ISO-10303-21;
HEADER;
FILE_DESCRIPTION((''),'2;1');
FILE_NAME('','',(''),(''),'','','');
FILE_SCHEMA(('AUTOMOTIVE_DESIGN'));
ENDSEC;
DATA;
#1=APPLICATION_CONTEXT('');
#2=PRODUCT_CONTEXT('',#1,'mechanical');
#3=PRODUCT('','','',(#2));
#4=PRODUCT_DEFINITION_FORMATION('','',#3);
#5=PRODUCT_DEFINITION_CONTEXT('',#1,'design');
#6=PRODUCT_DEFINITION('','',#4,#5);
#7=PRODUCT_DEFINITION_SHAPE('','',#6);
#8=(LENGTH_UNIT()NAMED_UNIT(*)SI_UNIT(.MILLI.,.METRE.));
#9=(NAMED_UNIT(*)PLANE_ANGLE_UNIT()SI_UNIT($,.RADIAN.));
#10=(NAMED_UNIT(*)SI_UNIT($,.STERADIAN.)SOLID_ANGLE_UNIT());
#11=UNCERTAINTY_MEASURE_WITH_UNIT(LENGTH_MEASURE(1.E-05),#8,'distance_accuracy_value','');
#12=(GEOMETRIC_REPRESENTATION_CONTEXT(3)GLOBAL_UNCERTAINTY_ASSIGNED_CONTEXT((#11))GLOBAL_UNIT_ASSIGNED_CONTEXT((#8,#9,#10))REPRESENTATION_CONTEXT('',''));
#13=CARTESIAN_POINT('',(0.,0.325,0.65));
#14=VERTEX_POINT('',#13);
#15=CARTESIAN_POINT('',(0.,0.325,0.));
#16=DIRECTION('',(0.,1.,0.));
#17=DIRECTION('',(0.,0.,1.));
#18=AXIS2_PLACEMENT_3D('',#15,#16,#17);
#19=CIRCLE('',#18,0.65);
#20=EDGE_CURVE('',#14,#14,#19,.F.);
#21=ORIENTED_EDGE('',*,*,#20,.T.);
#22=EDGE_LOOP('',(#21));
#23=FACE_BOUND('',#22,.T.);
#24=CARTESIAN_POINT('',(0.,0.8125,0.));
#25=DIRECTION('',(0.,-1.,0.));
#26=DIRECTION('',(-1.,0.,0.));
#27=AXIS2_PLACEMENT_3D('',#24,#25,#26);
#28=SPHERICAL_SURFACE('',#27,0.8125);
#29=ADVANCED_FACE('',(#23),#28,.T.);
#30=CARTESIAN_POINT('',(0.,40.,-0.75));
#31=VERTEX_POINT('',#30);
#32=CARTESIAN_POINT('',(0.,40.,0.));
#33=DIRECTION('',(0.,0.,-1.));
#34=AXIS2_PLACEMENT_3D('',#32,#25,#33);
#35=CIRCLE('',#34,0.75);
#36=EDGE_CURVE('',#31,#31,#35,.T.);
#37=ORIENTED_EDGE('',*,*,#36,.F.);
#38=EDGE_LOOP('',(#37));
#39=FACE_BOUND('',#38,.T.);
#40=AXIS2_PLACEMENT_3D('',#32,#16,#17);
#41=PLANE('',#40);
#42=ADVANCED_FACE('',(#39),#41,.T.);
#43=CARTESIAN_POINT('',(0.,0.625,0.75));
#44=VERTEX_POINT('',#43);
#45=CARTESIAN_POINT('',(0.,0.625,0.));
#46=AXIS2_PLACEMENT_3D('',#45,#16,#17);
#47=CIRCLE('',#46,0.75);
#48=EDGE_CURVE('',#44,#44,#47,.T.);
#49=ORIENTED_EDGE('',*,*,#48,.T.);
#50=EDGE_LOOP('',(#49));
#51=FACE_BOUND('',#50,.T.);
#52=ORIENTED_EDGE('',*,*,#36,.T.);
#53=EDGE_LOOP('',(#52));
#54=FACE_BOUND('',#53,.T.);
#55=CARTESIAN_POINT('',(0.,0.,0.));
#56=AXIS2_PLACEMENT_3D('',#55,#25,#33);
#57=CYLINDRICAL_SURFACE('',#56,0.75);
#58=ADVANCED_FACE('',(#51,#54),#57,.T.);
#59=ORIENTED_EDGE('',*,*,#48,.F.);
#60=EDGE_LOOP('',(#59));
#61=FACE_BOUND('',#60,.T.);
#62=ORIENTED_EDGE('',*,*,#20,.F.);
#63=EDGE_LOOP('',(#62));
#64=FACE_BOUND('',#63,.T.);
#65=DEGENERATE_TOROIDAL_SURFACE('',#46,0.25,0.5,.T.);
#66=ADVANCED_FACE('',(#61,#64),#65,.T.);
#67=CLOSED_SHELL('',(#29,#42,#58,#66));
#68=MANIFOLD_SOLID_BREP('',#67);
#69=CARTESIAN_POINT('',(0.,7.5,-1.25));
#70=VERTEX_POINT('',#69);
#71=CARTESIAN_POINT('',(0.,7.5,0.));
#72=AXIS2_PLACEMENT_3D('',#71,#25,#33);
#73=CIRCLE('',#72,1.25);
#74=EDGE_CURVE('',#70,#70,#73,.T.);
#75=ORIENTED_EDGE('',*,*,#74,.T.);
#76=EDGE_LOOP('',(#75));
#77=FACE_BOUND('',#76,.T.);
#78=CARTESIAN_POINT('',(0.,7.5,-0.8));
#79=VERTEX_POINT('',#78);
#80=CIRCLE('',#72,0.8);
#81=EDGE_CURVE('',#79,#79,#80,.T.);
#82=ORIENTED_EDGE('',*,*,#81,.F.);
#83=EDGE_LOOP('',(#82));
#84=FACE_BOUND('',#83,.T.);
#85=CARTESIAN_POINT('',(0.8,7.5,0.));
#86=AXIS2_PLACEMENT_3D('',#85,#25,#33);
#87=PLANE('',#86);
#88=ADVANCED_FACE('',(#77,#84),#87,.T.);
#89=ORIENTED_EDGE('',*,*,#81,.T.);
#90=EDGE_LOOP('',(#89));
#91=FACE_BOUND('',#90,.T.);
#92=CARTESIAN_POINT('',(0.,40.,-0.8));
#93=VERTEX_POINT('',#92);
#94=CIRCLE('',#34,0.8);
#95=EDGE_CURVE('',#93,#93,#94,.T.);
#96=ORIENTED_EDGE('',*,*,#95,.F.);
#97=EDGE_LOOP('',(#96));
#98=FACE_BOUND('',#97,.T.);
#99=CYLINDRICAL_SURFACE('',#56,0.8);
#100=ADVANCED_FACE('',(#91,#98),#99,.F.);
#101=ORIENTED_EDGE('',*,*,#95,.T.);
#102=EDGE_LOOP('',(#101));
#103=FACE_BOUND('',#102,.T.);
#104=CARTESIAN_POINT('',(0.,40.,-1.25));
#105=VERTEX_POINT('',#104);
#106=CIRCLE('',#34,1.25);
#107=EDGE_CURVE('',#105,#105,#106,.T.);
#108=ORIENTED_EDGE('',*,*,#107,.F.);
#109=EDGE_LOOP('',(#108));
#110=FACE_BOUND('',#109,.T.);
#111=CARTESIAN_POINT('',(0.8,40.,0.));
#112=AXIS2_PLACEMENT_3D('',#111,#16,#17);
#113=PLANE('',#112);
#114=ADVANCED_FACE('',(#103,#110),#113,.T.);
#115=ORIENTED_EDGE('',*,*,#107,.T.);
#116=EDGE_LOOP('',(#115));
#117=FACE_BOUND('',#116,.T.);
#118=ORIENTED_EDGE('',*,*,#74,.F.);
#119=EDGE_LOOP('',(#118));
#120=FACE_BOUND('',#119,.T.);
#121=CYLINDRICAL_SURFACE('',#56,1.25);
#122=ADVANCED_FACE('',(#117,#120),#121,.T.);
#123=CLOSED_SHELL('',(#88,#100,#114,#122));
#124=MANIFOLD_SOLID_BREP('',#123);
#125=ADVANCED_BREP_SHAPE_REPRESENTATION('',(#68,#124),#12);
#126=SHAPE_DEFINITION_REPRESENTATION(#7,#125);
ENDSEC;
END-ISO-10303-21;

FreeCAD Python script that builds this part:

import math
import FreeCAD as App
import Part
import Sketcher
Q = App.Units.Quantity


def edges_at(feature, points):
    """Names of the edges that pass closest to the given points."""
    edges = feature.Shape.Edges
    near = lambda p: min(range(len(edges)), key=lambda i: edges[i].distToShape(Part.Vertex(*p))[0])
    return sorted({f"Edge{near(p) + 1}" for p in points})


def add_polygon(sketch, points):
    """Adds a closed chain of lines whose ends are joined by coincident constraints."""
    first, n = sketch.GeometryCount, len(points)
    for a, b in zip(points, points[1:] + points[:1]):
        sketch.addGeometry(Part.LineSegment(App.Vector(*a, 0), App.Vector(*b, 0)), False)
    for i in range(n):
        sketch.addConstraint(Sketcher.Constraint("Coincident", first + i, 2, first + (i + 1) % n, 1))

doc = App.newDocument("Part")
body = doc.addObject("PartDesign::Body", "Body")
body.AllowCompound = True

# Sketch on XY plane
sketch1 = doc.addObject("Sketcher::SketchObject", "Sketch")
body.addObject(sketch1)
sketch1.AttachmentSupport = (doc.XY_Plane, [""])
sketch1.MapMode = "FlatFace"
sketch1.addGeometry(Part.LineSegment(App.Vector(0, 40, 0), App.Vector(0, 0, 0)), False)  # 0
sketch1.addGeometry(Part.ArcOfCircle(Part.Circle(App.Vector(0, 0.8125, 0), App.Vector(0, 0, 1), 0.8125), math.radians(-90), math.radians(-22.619865)), False)  # 1
sketch1.addGeometry(Part.LineSegment(App.Vector(0.75, 0.5, 0), App.Vector(0.75, 40, 0)), False)  # 2
sketch1.addGeometry(Part.LineSegment(App.Vector(0.75, 40, 0), App.Vector(0, 40, 0)), False)  # 3
add_polygon(sketch1, [(0.8, 40), (0.8, 7.5), (1.25, 7.5), (1.25, 40)])  # lines 4-7
sketch1.addConstraint(Sketcher.Constraint("Coincident", 0, 2, 1, 1))
sketch1.addConstraint(Sketcher.Constraint("Coincident", 1, 2, 2, 1))
sketch1.addConstraint(Sketcher.Constraint("Coincident", 2, 2, 3, 1))
sketch1.addConstraint(Sketcher.Constraint("Coincident", 3, 2, 0, 1))
sketch1.addConstraint(Sketcher.Constraint("Vertical", 0))
sketch1.addConstraint(Sketcher.Constraint("Vertical", 2))
sketch1.addConstraint(Sketcher.Constraint("Horizontal", 3))
sketch1.addConstraint(Sketcher.Constraint("Vertical", 4))
sketch1.addConstraint(Sketcher.Constraint("Horizontal", 5))
sketch1.addConstraint(Sketcher.Constraint("Vertical", 6))
sketch1.addConstraint(Sketcher.Constraint("Horizontal", 7))
sketch1.addConstraint(Sketcher.Constraint("Coincident", 0, 2, -1, 1))
sketch1.addConstraint(Sketcher.Constraint("PointOnObject", 1, 3, -2))
sketch1.addConstraint(Sketcher.Constraint("Horizontal", 3, 2, 6, 2))
sketch1.addConstraint(Sketcher.Constraint("DistanceY", 0, 2, 0, 1, Q("40 mm")))
sketch1.addConstraint(Sketcher.Constraint("DistanceY", 2, 1, 2, 2, Q("39.5 mm")))
sketch1.addConstraint(Sketcher.Constraint("DistanceY", 4, 2, 4, 1, Q("32.5 mm")))
sketch1.addConstraint(Sketcher.Constraint("DistanceX", 3, 2, 3, 1, Q("0.75 mm")))
sketch1.addConstraint(Sketcher.Constraint("DistanceX", 5, 1, 5, 2, Q("0.45 mm")))
sketch1.addConstraint(Sketcher.Constraint("DistanceX", -1, 1, 4, 2, Q("0.8 mm")))
revolution = doc.addObject("PartDesign::Revolution", "Revolution")
body.addObject(revolution)
revolution.Profile = sketch1
revolution.ReferenceAxis = (sketch1, ["V_Axis"])
revolution.Angle = 360
doc.recompute()

fillet = doc.addObject("PartDesign::Fillet", "Fillet")
body.addObject(fillet)
fillet.Base = (revolution, edges_at(revolution, [(-0.75, 0.5, 0)]))
fillet.Radius = 0.5

doc.recompute()
